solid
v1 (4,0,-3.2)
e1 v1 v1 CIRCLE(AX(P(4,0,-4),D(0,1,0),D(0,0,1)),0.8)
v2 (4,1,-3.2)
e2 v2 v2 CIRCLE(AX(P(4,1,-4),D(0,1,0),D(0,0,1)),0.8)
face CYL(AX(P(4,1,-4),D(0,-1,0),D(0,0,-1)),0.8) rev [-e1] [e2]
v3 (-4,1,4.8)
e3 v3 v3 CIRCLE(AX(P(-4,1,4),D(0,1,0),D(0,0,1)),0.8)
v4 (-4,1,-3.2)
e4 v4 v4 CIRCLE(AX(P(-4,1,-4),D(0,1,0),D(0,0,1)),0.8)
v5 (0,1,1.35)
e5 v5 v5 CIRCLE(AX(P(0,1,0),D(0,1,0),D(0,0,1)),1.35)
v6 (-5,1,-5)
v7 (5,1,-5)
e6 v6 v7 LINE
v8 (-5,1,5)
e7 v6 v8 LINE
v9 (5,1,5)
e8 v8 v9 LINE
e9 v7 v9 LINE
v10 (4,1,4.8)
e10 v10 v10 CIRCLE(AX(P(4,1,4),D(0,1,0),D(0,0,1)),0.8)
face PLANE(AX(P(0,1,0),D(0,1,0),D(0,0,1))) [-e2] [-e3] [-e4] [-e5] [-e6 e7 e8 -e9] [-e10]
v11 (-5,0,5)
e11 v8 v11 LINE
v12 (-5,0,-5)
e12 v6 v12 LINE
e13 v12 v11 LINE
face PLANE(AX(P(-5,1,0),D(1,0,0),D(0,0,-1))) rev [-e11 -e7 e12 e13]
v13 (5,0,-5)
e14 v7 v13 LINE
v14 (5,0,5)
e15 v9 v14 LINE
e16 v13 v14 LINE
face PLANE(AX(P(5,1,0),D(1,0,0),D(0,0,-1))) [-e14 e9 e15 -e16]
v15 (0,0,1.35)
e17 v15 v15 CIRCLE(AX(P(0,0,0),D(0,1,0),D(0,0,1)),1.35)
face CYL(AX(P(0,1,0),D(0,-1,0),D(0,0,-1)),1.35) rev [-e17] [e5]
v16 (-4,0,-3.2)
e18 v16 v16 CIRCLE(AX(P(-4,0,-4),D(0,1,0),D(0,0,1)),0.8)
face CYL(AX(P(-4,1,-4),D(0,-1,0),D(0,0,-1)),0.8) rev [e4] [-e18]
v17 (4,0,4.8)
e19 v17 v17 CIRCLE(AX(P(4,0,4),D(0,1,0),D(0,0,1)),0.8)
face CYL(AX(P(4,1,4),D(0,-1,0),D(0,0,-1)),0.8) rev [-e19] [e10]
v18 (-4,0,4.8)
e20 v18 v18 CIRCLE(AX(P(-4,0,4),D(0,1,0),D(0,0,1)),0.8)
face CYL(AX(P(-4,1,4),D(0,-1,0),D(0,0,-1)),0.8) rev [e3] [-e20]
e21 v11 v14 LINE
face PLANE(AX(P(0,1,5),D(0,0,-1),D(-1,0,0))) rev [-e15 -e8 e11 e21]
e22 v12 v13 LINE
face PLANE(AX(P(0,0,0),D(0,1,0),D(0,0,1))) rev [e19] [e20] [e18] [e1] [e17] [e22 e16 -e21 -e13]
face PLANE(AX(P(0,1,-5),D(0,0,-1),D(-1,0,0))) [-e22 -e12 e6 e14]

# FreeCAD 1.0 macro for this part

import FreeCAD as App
import Part
import Sketcher
from FreeCAD import Vector


def add_polygon(sketch, points):
    """Adds a closed chain of lines whose ends are joined by coincident constraints."""
    first, n = sketch.GeometryCount, len(points)
    for a, b in zip(points, points[1:] + points[:1]):
        sketch.addGeometry(Part.LineSegment(App.Vector(*a, 0), App.Vector(*b, 0)), False)
    for i in range(n):
        sketch.addConstraint(Sketcher.Constraint("Coincident", first + i, 2, first + (i + 1) % n, 1))

doc = App.newDocument("Part")
body = doc.addObject("PartDesign::Body", "Body")

sketch1 = doc.addObject("Sketcher::SketchObject", "Sketch")
body.addObject(sketch1)
sketch1.AttachmentSupport = (doc.XZ_Plane, [""])
sketch1.MapMode = "FlatFace"
add_polygon(sketch1, [(-5, -5), (-5, 5), (5, 5), (5, -5)])
sketch1.addGeometry(Part.Circle(Vector(-4, 4, 0), Vector(0, 0, 1), 0.8), False)
sketch1.addGeometry(Part.Circle(Vector(4, 4, 0), Vector(0, 0, 1), 0.8), False)
sketch1.addGeometry(Part.Circle(Vector(-4, -4, 0), Vector(0, 0, 1), 0.8), False)
sketch1.addGeometry(Part.Circle(Vector(0, 0, 0), Vector(0, 0, 1), 1.4), False)
sketch1.addGeometry(Part.Circle(Vector(4, -4, 0), Vector(0, 0, 1), 0.8), False)
sketch1.addConstraint([
    Sketcher.Constraint("Vertical", 0),
    Sketcher.Constraint("Horizontal", 1),
    Sketcher.Constraint("Vertical", 2),
    Sketcher.Constraint("Horizontal", 3),
    Sketcher.Constraint("Coincident", 7, 3, -1, 1),
    Sketcher.Constraint("Equal", 4, 5),
    Sketcher.Constraint("Equal", 5, 6),
    Sketcher.Constraint("Equal", 6, 8),
    Sketcher.Constraint("Symmetric", 5, 3, 6, 3, -1, 1),
    Sketcher.Constraint("Symmetric", 4, 3, 8, 3, -1, 1),
    Sketcher.Constraint("Symmetric", 0, 2, 2, 2, -1, 1),
    Sketcher.Constraint("Symmetric", 4, 3, 5, 3, -2),
    Sketcher.Constraint("Equal", 3, 0),
    Sketcher.Constraint("Diameter", 4, 1.6),
    Sketcher.Constraint("Diameter", 7, 2.7),
    Sketcher.Constraint("DistanceX", 1, 1, 1, 2, 10.0),
    Sketcher.Constraint("DistanceX", 4, 3, -1, 1, 4.0),
    Sketcher.Constraint("DistanceY", -1, 1, 4, 3, 4.0),
])
pad1 = doc.addObject("PartDesign::Pad", "Pad")
body.addObject(pad1)
pad1.Profile = sketch1
pad1.Length = 1
pad1.Reversed = True

doc.recompute()
